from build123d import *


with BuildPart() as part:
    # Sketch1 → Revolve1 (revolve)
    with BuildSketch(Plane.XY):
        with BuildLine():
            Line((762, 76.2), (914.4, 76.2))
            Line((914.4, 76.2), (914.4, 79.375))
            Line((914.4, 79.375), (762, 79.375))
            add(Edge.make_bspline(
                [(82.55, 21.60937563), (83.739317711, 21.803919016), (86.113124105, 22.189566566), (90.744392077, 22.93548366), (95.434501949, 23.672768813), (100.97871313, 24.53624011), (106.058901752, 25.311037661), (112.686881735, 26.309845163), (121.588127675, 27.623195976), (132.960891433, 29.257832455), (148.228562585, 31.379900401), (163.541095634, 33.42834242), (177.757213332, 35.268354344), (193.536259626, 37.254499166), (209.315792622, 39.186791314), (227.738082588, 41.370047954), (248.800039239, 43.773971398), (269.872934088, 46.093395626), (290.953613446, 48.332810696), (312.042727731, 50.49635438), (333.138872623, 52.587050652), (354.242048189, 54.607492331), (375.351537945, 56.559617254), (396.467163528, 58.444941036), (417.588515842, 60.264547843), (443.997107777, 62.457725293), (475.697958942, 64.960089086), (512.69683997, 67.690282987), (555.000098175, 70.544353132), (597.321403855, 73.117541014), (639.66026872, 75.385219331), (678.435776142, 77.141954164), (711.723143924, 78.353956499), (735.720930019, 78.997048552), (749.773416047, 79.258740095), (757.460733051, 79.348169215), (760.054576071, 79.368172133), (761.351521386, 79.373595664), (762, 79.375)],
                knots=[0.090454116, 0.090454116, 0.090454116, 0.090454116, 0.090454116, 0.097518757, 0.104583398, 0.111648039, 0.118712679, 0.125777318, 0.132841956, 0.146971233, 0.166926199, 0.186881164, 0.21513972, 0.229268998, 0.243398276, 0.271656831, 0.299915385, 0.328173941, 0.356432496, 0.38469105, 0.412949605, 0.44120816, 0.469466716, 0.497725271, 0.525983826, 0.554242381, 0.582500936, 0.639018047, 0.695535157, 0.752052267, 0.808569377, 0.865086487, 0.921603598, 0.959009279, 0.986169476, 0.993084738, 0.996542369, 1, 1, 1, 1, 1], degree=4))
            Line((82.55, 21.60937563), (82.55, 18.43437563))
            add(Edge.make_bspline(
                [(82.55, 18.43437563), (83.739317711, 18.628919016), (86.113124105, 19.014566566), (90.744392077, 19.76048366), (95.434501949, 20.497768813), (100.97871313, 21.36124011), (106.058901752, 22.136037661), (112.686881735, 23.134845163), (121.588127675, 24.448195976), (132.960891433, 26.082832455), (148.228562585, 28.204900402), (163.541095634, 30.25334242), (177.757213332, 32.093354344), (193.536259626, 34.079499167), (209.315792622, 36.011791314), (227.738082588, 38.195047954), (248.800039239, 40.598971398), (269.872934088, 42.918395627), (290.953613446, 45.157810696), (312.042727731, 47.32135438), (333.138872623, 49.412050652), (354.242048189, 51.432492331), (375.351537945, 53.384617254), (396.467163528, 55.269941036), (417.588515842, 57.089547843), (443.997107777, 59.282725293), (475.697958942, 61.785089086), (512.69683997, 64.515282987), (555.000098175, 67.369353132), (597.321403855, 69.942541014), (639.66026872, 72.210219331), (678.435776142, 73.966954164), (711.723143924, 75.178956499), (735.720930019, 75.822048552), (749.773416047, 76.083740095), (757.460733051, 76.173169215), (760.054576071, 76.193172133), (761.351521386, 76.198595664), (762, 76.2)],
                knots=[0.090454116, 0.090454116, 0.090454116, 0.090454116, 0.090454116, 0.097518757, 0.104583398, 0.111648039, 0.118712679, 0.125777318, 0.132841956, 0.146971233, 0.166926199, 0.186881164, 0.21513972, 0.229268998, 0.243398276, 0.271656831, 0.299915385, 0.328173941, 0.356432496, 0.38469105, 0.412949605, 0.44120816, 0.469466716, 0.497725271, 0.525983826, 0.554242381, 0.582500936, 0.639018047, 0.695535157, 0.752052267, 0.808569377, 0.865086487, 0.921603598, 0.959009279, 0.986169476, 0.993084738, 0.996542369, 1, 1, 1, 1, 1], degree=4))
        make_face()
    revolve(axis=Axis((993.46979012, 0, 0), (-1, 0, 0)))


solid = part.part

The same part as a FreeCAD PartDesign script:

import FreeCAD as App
import Part
import Sketcher
Q = App.Units.Quantity

doc = App.newDocument("Part")
params = doc.addObject("Spreadsheet::Sheet", "Params")
for row, (alias, value) in enumerate([
    ("sketch1_width", "6 in"),
    ("revolution_angle", "360 deg"),
], start=1):
    params.set(f"A{row}", alias)
    params.set(f"B{row}", "=" + value)
    params.setAlias(f"B{row}", alias)

body = doc.addObject("PartDesign::Body", "Body")

# Sketch on XY plane
sketch1 = doc.addObject("Sketcher::SketchObject", "Sketch")
body.addObject(sketch1)
sketch1.AttachmentSupport = (doc.XY_Plane, [""])
sketch1.MapMode = "FlatFace"
sketch1.addGeometry(Part.LineSegment(App.Vector(762, 76.2, 0), App.Vector(914.4, 76.2, 0)), False)
sketch1.addGeometry(Part.LineSegment(App.Vector(914.4, 76.2, 0), App.Vector(914.4, 79.375, 0)), False)
sketch1.addGeometry(Part.LineSegment(App.Vector(914.4, 79.375, 0), App.Vector(762, 79.375, 0)), False)
sketch1.addGeometry(Part.BSplineCurve([App.Vector(82.55, 21.609376, 0), App.Vector(83.739318, 21.803919, 0), App.Vector(86.113124, 22.189567, 0), App.Vector(90.744392, 22.935484, 0), App.Vector(95.434502, 23.672769, 0), App.Vector(100.978713, 24.53624, 0), App.Vector(106.058902, 25.311038, 0), App.Vector(112.686882, 26.309845, 0), App.Vector(121.588128, 27.623196, 0), App.Vector(132.960891, 29.257832, 0), App.Vector(148.228563, 31.3799, 0), App.Vector(163.541096, 33.428342, 0), App.Vector(177.757213, 35.268354, 0), App.Vector(193.53626, 37.254499, 0), App.Vector(209.315793, 39.186791, 0), App.Vector(227.738083, 41.370048, 0), App.Vector(248.800039, 43.773971, 0), App.Vector(269.872934, 46.093396, 0), App.Vector(290.953613, 48.332811, 0), App.Vector(312.042728, 50.496354, 0), App.Vector(333.138873, 52.587051, 0), App.Vector(354.242048, 54.607492, 0), App.Vector(375.351538, 56.559617, 0), App.Vector(396.467164, 58.444941, 0), App.Vector(417.588516, 60.264548, 0), App.Vector(443.997108, 62.457725, 0), App.Vector(475.697959, 64.960089, 0), App.Vector(512.69684, 67.690283, 0), App.Vector(555.000098, 70.544353, 0), App.Vector(597.321404, 73.117541, 0), App.Vector(639.660269, 75.385219, 0), App.Vector(678.435776, 77.141954, 0), App.Vector(711.723144, 78.353956, 0), App.Vector(735.72093, 78.997049, 0), App.Vector(749.773416, 79.25874, 0), App.Vector(757.460733, 79.348169, 0), App.Vector(760.054576, 79.368172, 0), App.Vector(761.351521, 79.373596, 0), App.Vector(762, 79.375, 0)], [5, 1, 1, 1, 1, 1, 1, 1, 1, 1, 1, 1, 1, 1, 1, 1, 1, 1, 1, 1, 1, 1, 1, 1, 1, 1, 1, 1, 1, 1, 1, 1, 1, 1, 1, 5], [0.090454116, 0.097518757, 0.104583398, 0.111648039, 0.118712679, 0.125777318, 0.132841956, 0.146971233, 0.166926199, 0.186881164, 0.21513972, 0.229268998, 0.243398276, 0.271656831, 0.299915385, 0.328173941, 0.356432496, 0.38469105, 0.412949605, 0.44120816, 0.469466716, 0.497725271, 0.525983826, 0.554242381, 0.582500936, 0.639018047, 0.695535157, 0.752052267, 0.808569377, 0.865086487, 0.921603598, 0.959009279, 0.986169476, 0.993084738, 0.996542369, 1], False, 4, [1, 1, 1, 1, 1, 1, 1, 1, 1, 1, 1, 1, 1, 1, 1, 1, 1, 1, 1, 1, 1, 1, 1, 1, 1, 1, 1, 1, 1, 1, 1, 1, 1, 1, 1, 1, 1, 1, 1], False), False)
sketch1.addGeometry(Part.LineSegment(App.Vector(82.55, 21.609376, 0), App.Vector(82.55, 18.434376, 0)), False)
sketch1.addGeometry(Part.BSplineCurve([App.Vector(82.55, 18.434376, 0), App.Vector(83.739318, 18.628919, 0), App.Vector(86.113124, 19.014567, 0), App.Vector(90.744392, 19.760484, 0), App.Vector(95.434502, 20.497769, 0), App.Vector(100.978713, 21.36124, 0), App.Vector(106.058902, 22.136038, 0), App.Vector(112.686882, 23.134845, 0), App.Vector(121.588128, 24.448196, 0), App.Vector(132.960891, 26.082832, 0), App.Vector(148.228563, 28.2049, 0), App.Vector(163.541096, 30.253342, 0), App.Vector(177.757213, 32.093354, 0), App.Vector(193.53626, 34.079499, 0), App.Vector(209.315793, 36.011791, 0), App.Vector(227.738083, 38.195048, 0), App.Vector(248.800039, 40.598971, 0), App.Vector(269.872934, 42.918396, 0), App.Vector(290.953613, 45.157811, 0), App.Vector(312.042728, 47.321354, 0), App.Vector(333.138873, 49.412051, 0), App.Vector(354.242048, 51.432492, 0), App.Vector(375.351538, 53.384617, 0), App.Vector(396.467164, 55.269941, 0), App.Vector(417.588516, 57.089548, 0), App.Vector(443.997108, 59.282725, 0), App.Vector(475.697959, 61.785089, 0), App.Vector(512.69684, 64.515283, 0), App.Vector(555.000098, 67.369353, 0), App.Vector(597.321404, 69.942541, 0), App.Vector(639.660269, 72.210219, 0), App.Vector(678.435776, 73.966954, 0), App.Vector(711.723144, 75.178956, 0), App.Vector(735.72093, 75.822049, 0), App.Vector(749.773416, 76.08374, 0), App.Vector(757.460733, 76.173169, 0), App.Vector(760.054576, 76.193172, 0), App.Vector(761.351521, 76.198596, 0), App.Vector(762, 76.2, 0)], [5, 1, 1, 1, 1, 1, 1, 1, 1, 1, 1, 1, 1, 1, 1, 1, 1, 1, 1, 1, 1, 1, 1, 1, 1, 1, 1, 1, 1, 1, 1, 1, 1, 1, 1, 5], [0.090454116, 0.097518757, 0.104583398, 0.111648039, 0.118712679, 0.125777318, 0.132841956, 0.146971233, 0.166926199, 0.186881164, 0.21513972, 0.229268998, 0.243398276, 0.271656831, 0.299915385, 0.328173941, 0.356432496, 0.38469105, 0.412949605, 0.44120816, 0.469466716, 0.497725271, 0.525983826, 0.554242381, 0.582500936, 0.639018047, 0.695535157, 0.752052267, 0.808569377, 0.865086487, 0.921603598, 0.959009279, 0.986169476, 0.993084738, 0.996542369, 1], False, 4, [1, 1, 1, 1, 1, 1, 1, 1, 1, 1, 1, 1, 1, 1, 1, 1, 1, 1, 1, 1, 1, 1, 1, 1, 1, 1, 1, 1, 1, 1, 1, 1, 1, 1, 1, 1, 1, 1, 1], False), False)
sketch1.addConstraint(Sketcher.Constraint("Block", 3))
sketch1.addConstraint(Sketcher.Constraint("Block", 5))
sketch1.addConstraint(Sketcher.Constraint("Coincident", 0, 2, 1, 1))
sketch1.addConstraint(Sketcher.Constraint("Coincident", 1, 2, 2, 1))
sketch1.addConstraint(Sketcher.Constraint("Coincident", 2, 2, 3, 2))
sketch1.addConstraint(Sketcher.Constraint("Coincident", 3, 1, 4, 1))
sketch1.addConstraint(Sketcher.Constraint("Coincident", 4, 2, 5, 1))
sketch1.addConstraint(Sketcher.Constraint("Coincident", 5, 2, 0, 1))
sketch1.addConstraint(Sketcher.Constraint("Horizontal", 0))
sketch1.addConstraint(Sketcher.Constraint("Vertical", 1))
sketch1.addConstraint(Sketcher.Constraint("Horizontal", 2))
sketch1.addConstraint(Sketcher.Constraint("DistanceX", 0, 1, 0, 2, Q("6 in")))
sketch1.setExpression("Constraints[11]", "Params.sketch1_width")
revolution = doc.addObject("PartDesign::Revolution", "Revolution")
body.addObject(revolution)
revolution.Profile = sketch1
revolution.ReferenceAxis = (sketch1, ["H_Axis"])
revolution.setExpression("Angle", "Params.revolution_angle")

doc.recompute()
